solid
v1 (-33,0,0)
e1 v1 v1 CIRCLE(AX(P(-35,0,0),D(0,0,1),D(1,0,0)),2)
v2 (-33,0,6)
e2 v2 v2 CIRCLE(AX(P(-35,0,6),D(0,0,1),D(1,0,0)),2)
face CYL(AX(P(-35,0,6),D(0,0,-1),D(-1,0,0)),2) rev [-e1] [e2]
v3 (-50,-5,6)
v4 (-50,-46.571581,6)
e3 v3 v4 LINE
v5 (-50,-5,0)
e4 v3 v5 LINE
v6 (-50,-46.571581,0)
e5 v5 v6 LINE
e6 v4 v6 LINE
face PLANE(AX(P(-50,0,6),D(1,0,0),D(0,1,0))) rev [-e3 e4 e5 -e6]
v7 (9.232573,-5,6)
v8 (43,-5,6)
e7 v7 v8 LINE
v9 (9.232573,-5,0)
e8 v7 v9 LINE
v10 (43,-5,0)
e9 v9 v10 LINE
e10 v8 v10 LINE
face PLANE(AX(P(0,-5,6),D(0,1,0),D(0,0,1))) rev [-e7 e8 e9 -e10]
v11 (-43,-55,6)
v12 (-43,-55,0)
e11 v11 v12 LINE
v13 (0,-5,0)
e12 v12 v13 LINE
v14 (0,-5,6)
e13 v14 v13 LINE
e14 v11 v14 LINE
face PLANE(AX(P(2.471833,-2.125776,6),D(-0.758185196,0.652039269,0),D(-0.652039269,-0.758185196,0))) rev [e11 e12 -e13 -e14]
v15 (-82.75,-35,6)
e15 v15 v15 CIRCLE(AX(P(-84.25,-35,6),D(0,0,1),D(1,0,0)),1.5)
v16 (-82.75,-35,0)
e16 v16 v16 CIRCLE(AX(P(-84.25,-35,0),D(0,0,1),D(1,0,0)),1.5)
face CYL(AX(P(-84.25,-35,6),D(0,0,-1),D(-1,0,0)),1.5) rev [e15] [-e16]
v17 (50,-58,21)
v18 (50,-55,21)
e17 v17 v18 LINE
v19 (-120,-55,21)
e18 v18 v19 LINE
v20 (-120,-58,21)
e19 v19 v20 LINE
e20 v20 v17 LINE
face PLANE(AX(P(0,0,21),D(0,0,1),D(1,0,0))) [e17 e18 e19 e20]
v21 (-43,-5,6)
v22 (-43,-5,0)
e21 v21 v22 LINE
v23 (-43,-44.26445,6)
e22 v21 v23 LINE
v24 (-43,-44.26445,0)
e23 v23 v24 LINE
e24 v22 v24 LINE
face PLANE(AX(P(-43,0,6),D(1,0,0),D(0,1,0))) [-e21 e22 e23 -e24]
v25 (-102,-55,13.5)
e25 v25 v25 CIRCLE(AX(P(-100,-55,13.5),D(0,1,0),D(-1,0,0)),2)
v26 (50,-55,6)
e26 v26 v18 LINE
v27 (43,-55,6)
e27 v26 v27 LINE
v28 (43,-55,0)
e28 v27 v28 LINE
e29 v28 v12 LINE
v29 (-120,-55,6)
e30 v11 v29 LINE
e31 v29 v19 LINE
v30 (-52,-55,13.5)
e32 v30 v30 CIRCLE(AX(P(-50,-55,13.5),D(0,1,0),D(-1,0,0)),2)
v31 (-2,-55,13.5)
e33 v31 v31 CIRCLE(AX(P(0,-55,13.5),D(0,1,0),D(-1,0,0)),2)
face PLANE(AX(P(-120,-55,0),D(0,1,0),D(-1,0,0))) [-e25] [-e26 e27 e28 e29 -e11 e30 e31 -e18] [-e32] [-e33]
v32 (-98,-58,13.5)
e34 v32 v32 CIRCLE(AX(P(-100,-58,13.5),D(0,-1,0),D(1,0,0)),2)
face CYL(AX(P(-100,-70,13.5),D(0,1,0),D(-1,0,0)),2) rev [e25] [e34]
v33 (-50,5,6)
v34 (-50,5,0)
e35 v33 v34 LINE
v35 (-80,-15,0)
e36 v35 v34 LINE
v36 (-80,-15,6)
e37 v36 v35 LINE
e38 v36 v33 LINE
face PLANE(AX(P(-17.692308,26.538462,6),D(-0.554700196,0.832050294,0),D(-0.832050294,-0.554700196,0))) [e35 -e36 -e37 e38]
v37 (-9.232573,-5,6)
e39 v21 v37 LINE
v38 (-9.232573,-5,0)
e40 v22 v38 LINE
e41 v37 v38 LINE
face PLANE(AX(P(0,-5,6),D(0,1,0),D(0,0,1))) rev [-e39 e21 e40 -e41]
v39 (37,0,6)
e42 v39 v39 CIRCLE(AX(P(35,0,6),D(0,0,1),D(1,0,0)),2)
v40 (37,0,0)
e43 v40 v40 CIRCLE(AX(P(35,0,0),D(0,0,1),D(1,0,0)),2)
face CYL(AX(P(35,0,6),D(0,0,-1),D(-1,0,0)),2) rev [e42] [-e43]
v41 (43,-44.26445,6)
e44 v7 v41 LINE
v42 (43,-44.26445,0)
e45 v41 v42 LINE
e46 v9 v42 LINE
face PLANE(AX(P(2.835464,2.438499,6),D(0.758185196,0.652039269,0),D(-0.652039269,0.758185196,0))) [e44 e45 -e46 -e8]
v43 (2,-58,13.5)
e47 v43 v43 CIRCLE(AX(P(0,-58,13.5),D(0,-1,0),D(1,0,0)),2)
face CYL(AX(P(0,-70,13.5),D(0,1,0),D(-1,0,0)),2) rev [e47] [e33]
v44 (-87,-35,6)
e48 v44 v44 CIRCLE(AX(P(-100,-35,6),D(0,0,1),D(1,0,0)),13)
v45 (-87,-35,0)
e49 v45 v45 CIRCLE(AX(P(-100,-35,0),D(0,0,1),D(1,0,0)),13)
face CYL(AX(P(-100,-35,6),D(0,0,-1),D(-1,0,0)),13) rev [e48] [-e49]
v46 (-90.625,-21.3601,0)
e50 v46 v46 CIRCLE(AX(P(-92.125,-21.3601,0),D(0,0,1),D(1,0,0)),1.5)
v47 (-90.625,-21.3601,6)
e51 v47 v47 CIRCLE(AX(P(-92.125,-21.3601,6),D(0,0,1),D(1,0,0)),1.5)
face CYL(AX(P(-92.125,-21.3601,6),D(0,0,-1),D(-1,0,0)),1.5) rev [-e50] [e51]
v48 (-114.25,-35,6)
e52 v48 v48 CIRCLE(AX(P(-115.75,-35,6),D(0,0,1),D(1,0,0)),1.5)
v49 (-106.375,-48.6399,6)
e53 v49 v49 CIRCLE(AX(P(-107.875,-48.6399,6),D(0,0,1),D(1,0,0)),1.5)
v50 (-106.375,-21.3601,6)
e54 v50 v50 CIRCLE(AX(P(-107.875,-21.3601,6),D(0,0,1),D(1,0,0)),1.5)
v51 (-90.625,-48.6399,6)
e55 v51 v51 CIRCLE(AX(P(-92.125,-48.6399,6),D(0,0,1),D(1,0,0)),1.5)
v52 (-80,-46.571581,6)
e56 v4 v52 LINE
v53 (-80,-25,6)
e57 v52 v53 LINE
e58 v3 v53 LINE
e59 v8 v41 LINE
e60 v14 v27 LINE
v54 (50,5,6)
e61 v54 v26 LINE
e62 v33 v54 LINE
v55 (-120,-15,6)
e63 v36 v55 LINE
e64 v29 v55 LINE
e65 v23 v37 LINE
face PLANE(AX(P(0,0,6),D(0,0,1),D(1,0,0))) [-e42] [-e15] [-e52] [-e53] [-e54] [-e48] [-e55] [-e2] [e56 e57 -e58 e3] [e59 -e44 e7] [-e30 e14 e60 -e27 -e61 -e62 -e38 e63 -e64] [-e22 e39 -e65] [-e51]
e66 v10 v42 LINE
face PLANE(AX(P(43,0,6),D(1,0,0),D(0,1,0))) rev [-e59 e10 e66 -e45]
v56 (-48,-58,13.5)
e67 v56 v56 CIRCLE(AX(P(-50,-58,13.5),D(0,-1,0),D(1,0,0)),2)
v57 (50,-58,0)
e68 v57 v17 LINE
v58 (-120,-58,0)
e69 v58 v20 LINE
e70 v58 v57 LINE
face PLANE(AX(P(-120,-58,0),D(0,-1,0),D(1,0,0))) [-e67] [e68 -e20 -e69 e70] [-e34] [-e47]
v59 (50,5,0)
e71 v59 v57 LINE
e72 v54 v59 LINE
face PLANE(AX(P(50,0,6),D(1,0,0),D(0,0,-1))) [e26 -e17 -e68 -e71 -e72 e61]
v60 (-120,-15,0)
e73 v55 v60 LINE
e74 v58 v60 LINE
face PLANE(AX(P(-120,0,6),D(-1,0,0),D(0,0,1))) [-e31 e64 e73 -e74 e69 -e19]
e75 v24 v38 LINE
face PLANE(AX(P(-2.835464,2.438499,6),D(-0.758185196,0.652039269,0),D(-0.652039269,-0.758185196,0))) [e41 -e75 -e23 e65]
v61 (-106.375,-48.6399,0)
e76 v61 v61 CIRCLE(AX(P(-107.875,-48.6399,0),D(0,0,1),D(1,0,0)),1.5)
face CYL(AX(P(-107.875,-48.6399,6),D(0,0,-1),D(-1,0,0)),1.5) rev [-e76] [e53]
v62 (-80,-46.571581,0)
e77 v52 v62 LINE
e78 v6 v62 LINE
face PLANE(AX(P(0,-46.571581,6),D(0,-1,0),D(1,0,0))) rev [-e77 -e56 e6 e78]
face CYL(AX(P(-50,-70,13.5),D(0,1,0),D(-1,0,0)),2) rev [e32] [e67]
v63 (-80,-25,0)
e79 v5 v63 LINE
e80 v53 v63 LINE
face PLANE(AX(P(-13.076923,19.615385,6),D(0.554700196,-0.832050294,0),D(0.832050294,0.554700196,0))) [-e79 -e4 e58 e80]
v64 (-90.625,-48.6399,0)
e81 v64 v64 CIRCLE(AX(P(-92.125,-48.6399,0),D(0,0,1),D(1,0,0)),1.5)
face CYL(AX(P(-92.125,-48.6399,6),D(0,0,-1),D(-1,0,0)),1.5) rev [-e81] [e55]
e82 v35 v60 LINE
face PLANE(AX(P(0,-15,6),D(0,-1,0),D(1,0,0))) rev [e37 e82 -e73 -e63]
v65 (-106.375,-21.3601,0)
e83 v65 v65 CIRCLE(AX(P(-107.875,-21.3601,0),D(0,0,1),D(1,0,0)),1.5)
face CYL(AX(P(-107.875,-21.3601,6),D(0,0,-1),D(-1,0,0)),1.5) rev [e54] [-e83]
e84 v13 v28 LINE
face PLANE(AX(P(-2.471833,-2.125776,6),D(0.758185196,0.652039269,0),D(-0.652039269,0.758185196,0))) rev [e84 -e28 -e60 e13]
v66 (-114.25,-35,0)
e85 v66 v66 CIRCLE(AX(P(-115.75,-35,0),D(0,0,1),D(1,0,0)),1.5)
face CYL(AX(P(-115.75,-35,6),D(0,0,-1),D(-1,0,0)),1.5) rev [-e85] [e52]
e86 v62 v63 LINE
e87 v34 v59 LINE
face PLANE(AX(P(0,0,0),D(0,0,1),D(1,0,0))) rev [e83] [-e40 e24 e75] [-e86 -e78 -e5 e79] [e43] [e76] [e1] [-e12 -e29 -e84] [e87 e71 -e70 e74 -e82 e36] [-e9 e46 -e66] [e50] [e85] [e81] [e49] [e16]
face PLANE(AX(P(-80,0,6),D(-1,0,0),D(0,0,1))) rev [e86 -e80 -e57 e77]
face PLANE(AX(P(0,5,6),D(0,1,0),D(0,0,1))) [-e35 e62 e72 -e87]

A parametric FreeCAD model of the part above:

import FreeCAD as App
import Part
import Sketcher
from FreeCAD import Vector


def add_polygon(sketch, points):
    """Adds a closed chain of lines whose ends are joined by coincident constraints."""
    first, n = sketch.GeometryCount, len(points)
    for a, b in zip(points, points[1:] + points[:1]):
        sketch.addGeometry(Part.LineSegment(App.Vector(*a, 0), App.Vector(*b, 0)), False)
    for i in range(n):
        sketch.addConstraint(Sketcher.Constraint("Coincident", first + i, 2, first + (i + 1) % n, 1))

doc = App.newDocument("Part")
params = doc.addObject("Spreadsheet::Sheet", "Params")
for row, (alias, value) in enumerate([
    ("sketch1_diameter", "3 mm"),
    ("sketch1_diameter2", "26 mm"),
    ("sketch1_diameter3", "4 mm"),
    ("sketch1_width", "100 mm"),
    ("sketch1_width2", "40 mm"),
    ("pad1_length", "6 mm"),
    ("sketch2_width", "170 mm"),
    ("sketch2_height", "3 mm"),
    ("pad2_length", "15 mm"),
    ("pad2_length2", "6 mm"),
    ("sketch3_diameter", "4 mm"),
    ("pocket1_length", "15 mm"),
], start=1):
    params.set(f"A{row}", alias)
    params.set(f"B{row}", "=" + value)
    params.setAlias(f"B{row}", alias)

body = doc.addObject("PartDesign::Body", "Body")

sketch1 = doc.addObject("Sketcher::SketchObject", "Sketch")
body.addObject(sketch1)
sketch1.AttachmentSupport = (doc.XY_Plane, [""])
sketch1.MapMode = "FlatFace"
add_polygon(sketch1, [(50, 5), (-50, 5), (-80, -15), (-120, -15), (-120, -55), (-43, -55), (0, -5), (43, -55), (50, -55)])
sketch1.addGeometry(Part.Circle(Vector(-107.875, -48.6399, 0), Vector(0, 0, 1), 1.5), False)
sketch1.addGeometry(Part.Circle(Vector(-92.125, -48.6399, 0), Vector(0, 0, 1), 1.5), False)
sketch1.addGeometry(Part.Circle(Vector(-115.75, -35, 0), Vector(0, 0, 1), 1.5), False)
sketch1.addGeometry(Part.Circle(Vector(-100, -35, 0), Vector(0, 0, 1), 13), False)
sketch1.addGeometry(Part.Circle(Vector(-84.25, -35, 0), Vector(0, 0, 1), 1.5), False)
add_polygon(sketch1, [(-50, -46.571581), (-80, -46.571581), (-80, -25), (-50, -5)])
add_polygon(sketch1, [(-9.232573, -5), (-43, -44.26445), (-43, -5)])
add_polygon(sketch1, [(9.232573, -5), (43, -5), (43, -44.26445)])
sketch1.addGeometry(Part.Circle(Vector(-107.875, -21.3601, 0), Vector(0, 0, 1), 1.5), False)
sketch1.addGeometry(Part.Circle(Vector(-92.125, -21.3601, 0), Vector(0, 0, 1), 1.5), False)
sketch1.addGeometry(Part.Circle(Vector(-35, 0, 0), Vector(0, 0, 1), 2), False)
sketch1.addGeometry(Part.Circle(Vector(35, 0, 0), Vector(0, 0, 1), 2), False)
sketch1.addConstraint(Sketcher.Constraint("Horizontal", 0))
sketch1.addConstraint(Sketcher.Constraint("Horizontal", 2))
sketch1.addConstraint(Sketcher.Constraint("Vertical", 3))
sketch1.addConstraint(Sketcher.Constraint("Horizontal", 4))
sketch1.addConstraint(Sketcher.Constraint("Horizontal", 7))
sketch1.addConstraint(Sketcher.Constraint("Vertical", 8))
sketch1.addConstraint(Sketcher.Constraint("Horizontal", 14))
sketch1.addConstraint(Sketcher.Constraint("Vertical", 15))
sketch1.addConstraint(Sketcher.Constraint("Vertical", 17))
sketch1.addConstraint(Sketcher.Constraint("Vertical", 19))
sketch1.addConstraint(Sketcher.Constraint("Horizontal", 20))
sketch1.addConstraint(Sketcher.Constraint("Horizontal", 21))
sketch1.addConstraint(Sketcher.Constraint("Vertical", 22))
sketch1.addConstraint(Sketcher.Constraint("Equal", 9, 10))
sketch1.addConstraint(Sketcher.Constraint("Equal", 10, 11))
sketch1.addConstraint(Sketcher.Constraint("Equal", 11, 13))
sketch1.addConstraint(Sketcher.Constraint("Equal", 13, 24))
sketch1.addConstraint(Sketcher.Constraint("Equal", 24, 25))
sketch1.addConstraint(Sketcher.Constraint("Equal", 26, 27))
sketch1.addConstraint(Sketcher.Constraint("Symmetric", 26, 3, 27, 3, -1, 1))
sketch1.addConstraint(Sketcher.Constraint("Symmetric", 8, 2, 16, 2, -1, 1))
sketch1.addConstraint(Sketcher.Constraint("Symmetric", 4, 2, 6, 2, -2))
sketch1.addConstraint(Sketcher.Constraint("Symmetric", 19, 2, 21, 2, -2))
sketch1.addConstraint(Sketcher.Constraint("PointOnObject", 26, 3, -1))
sketch1.addConstraint(Sketcher.Constraint("PointOnObject", 5, 2, -2))
sketch1.addConstraint(Sketcher.Constraint("Parallel", 1, 16))
sketch1.addConstraint(Sketcher.Constraint("Parallel", 5, 18))
sketch1.addConstraint(Sketcher.Constraint("Parallel", 6, 23))
sketch1.addConstraint(Sketcher.Constraint("Horizontal", 9, 3, 10, 3))
sketch1.addConstraint(Sketcher.Constraint("Horizontal", 11, 3, 12, 3))
sketch1.addConstraint(Sketcher.Constraint("Horizontal", 12, 3, 13, 3))
sketch1.addConstraint(Sketcher.Constraint("Horizontal", 24, 3, 25, 3))
sketch1.addConstraint(Sketcher.Constraint("Horizontal", 5, 2, 16, 2))
sketch1.addConstraint(Sketcher.Constraint("Horizontal", 16, 2, 19, 2))
sketch1.addConstraint(Sketcher.Constraint("Horizontal", 18, 2, 22, 2))
sketch1.addConstraint(Sketcher.Constraint("Vertical", 9, 3, 24, 3))
sketch1.addConstraint(Sketcher.Constraint("Vertical", 10, 3, 25, 3))
sketch1.addConstraint(Sketcher.Constraint("Vertical", 1, 2, 14, 2))
sketch1.addConstraint(Sketcher.Constraint("Vertical", 0, 2, 16, 2))
sketch1.addConstraint(Sketcher.Constraint("Vertical", 4, 2, 18, 2))
sketch1.addConstraint(Sketcher.Constraint("Equal", 2, 3))
sketch1.addConstraint(Sketcher.Constraint("Diameter", 9, 3.0))
sketch1.addConstraint(Sketcher.Constraint("Diameter", 12, 26.0))
sketch1.addConstraint(Sketcher.Constraint("Diameter", 26, 4.0))
sketch1.addConstraint(Sketcher.Constraint("DistanceX", 0, 2, 0, 1, 100.0))
sketch1.addConstraint(Sketcher.Constraint("DistanceX", 2, 2, 2, 1, 40.0))
sketch1.addConstraint(Sketcher.Constraint("DistanceX", 4, 1, 4, 2, 77.0))
sketch1.addConstraint(Sketcher.Constraint("DistanceX", 7, 1, 7, 2, 7.0))
sketch1.addConstraint(Sketcher.Constraint("DistanceY", 8, 1, 8, 2, 60.0))
sketch1.addConstraint(Sketcher.Constraint("DistanceY", 11, 3, -1, 1, 35.0))
sketch1.addConstraint(Sketcher.Constraint("DistanceX", 12, 3, -1, 1, 100.0))
sketch1.addConstraint(Sketcher.Constraint("DistanceX", 26, 3, -1, 1, 35.0))
sketch1.addConstraint(Sketcher.Constraint("DistanceY", -1, 1, 0, 2, 5.0))
sketch1.addConstraint(Sketcher.Constraint("DistanceX", 11, 3, 13, 3, 31.5))
sketch1.addConstraint(Sketcher.Constraint("DistanceX", 11, 3, -1, 1, 115.75))
sketch1.addConstraint(Sketcher.Constraint("DistanceX", 9, 3, 10, 3, 15.75))
sketch1.addConstraint(Sketcher.Constraint("DistanceX", 9, 3, -1, 1, 107.875))
sketch1.addConstraint(Sketcher.Constraint("DistanceY", 15, 1, 15, 2, 21.571581))
sketch1.addConstraint(Sketcher.Constraint("DistanceY", 19, 1, 19, 2, 39.26445))
sketch1.addConstraint(Sketcher.Constraint("DistanceY", 9, 3, -1, 1, 48.6399))
sketch1.addConstraint(Sketcher.Constraint("DistanceY", 24, 3, -1, 1, 21.3601))
sketch1.setExpression("Constraints[60]", "Params.sketch1_diameter")
sketch1.setExpression("Constraints[61]", "Params.sketch1_diameter2")
sketch1.setExpression("Constraints[62]", "Params.sketch1_diameter3")
sketch1.setExpression("Constraints[63]", "Params.sketch1_width")
sketch1.setExpression("Constraints[64]", "Params.sketch1_width2")
pad1 = doc.addObject("PartDesign::Pad", "Pad")
body.addObject(pad1)
pad1.Profile = sketch1
pad1.setExpression("Length", "Params.pad1_length")

sketch2 = doc.addObject("Sketcher::SketchObject", "Sketch001")
body.addObject(sketch2)
sketch2.AttachmentSupport = (doc.XY_Plane, [""])
sketch2.MapMode = "FlatFace"
sketch2.AttachmentOffset = App.Placement(Vector(0, 0, 6), App.Rotation())
add_polygon(sketch2, [(-120, -55), (-120, -58), (50, -58), (50, -55)])
sketch2.addConstraint(Sketcher.Constraint("Vertical", 0))
sketch2.addConstraint(Sketcher.Constraint("Horizontal", 1))
sketch2.addConstraint(Sketcher.Constraint("Vertical", 2))
sketch2.addConstraint(Sketcher.Constraint("Horizontal", 3))
sketch2.addConstraint(Sketcher.Constraint("DistanceX", 1, 1, 1, 2, 170.0))
sketch2.addConstraint(Sketcher.Constraint("DistanceY", 0, 2, 0, 1, 3.0))
sketch2.addConstraint(Sketcher.Constraint("DistanceX", 0, 2, -1, 1, 120.0))
sketch2.addConstraint(Sketcher.Constraint("DistanceY", 0, 2, -1, 1, 58.0))
sketch2.setExpression("Constraints[8]", "Params.sketch2_width")
sketch2.setExpression("Constraints[9]", "Params.sketch2_height")
pad2 = doc.addObject("PartDesign::Pad", "Pad001")
body.addObject(pad2)
pad2.Profile = sketch2
pad2.Type = "TwoLengths"
pad2.setExpression("Length", "Params.pad2_length")
pad2.setExpression("Length2", "Params.pad2_length2")

sketch3 = doc.addObject("Sketcher::SketchObject", "Sketch002")
body.addObject(sketch3)
sketch3.AttachmentSupport = (doc.XZ_Plane, [""])
sketch3.MapMode = "FlatFace"
sketch3.AttachmentOffset = App.Placement(Vector(0, 0, 55), App.Rotation())
sketch3.addGeometry(Part.Circle(Vector(0, 13.5, 0), Vector(0, 0, 1), 2), False)
sketch3.addGeometry(Part.Circle(Vector(-50, 13.5, 0), Vector(0, 0, 1), 2), False)
sketch3.addGeometry(Part.Circle(Vector(-100, 13.5, 0), Vector(0, 0, 1), 2), False)
sketch3.addConstraint(Sketcher.Constraint("Equal", 0, 1))
sketch3.addConstraint(Sketcher.Constraint("Equal", 1, 2))
sketch3.addConstraint(Sketcher.Constraint("PointOnObject", 0, 3, -2))
sketch3.addConstraint(Sketcher.Constraint("Horizontal", 0, 3, 1, 3))
sketch3.addConstraint(Sketcher.Constraint("Horizontal", 1, 3, 2, 3))
sketch3.addConstraint(Sketcher.Constraint("Diameter", 0, 4.0))
sketch3.addConstraint(Sketcher.Constraint("DistanceX", 1, 3, -1, 1, 50.0))
sketch3.addConstraint(Sketcher.Constraint("DistanceX", 2, 3, -1, 1, 100.0))
sketch3.addConstraint(Sketcher.Constraint("DistanceY", -1, 1, 0, 3, 13.5))
sketch3.setExpression("Constraints[5]", "Params.sketch3_diameter")
pocket1 = doc.addObject("PartDesign::Pocket", "Pocket")
body.addObject(pocket1)
pocket1.Profile = sketch3
pocket1.setExpression("Length", "Params.pocket1_length")
pocket1.Reversed = True

doc.recompute()
